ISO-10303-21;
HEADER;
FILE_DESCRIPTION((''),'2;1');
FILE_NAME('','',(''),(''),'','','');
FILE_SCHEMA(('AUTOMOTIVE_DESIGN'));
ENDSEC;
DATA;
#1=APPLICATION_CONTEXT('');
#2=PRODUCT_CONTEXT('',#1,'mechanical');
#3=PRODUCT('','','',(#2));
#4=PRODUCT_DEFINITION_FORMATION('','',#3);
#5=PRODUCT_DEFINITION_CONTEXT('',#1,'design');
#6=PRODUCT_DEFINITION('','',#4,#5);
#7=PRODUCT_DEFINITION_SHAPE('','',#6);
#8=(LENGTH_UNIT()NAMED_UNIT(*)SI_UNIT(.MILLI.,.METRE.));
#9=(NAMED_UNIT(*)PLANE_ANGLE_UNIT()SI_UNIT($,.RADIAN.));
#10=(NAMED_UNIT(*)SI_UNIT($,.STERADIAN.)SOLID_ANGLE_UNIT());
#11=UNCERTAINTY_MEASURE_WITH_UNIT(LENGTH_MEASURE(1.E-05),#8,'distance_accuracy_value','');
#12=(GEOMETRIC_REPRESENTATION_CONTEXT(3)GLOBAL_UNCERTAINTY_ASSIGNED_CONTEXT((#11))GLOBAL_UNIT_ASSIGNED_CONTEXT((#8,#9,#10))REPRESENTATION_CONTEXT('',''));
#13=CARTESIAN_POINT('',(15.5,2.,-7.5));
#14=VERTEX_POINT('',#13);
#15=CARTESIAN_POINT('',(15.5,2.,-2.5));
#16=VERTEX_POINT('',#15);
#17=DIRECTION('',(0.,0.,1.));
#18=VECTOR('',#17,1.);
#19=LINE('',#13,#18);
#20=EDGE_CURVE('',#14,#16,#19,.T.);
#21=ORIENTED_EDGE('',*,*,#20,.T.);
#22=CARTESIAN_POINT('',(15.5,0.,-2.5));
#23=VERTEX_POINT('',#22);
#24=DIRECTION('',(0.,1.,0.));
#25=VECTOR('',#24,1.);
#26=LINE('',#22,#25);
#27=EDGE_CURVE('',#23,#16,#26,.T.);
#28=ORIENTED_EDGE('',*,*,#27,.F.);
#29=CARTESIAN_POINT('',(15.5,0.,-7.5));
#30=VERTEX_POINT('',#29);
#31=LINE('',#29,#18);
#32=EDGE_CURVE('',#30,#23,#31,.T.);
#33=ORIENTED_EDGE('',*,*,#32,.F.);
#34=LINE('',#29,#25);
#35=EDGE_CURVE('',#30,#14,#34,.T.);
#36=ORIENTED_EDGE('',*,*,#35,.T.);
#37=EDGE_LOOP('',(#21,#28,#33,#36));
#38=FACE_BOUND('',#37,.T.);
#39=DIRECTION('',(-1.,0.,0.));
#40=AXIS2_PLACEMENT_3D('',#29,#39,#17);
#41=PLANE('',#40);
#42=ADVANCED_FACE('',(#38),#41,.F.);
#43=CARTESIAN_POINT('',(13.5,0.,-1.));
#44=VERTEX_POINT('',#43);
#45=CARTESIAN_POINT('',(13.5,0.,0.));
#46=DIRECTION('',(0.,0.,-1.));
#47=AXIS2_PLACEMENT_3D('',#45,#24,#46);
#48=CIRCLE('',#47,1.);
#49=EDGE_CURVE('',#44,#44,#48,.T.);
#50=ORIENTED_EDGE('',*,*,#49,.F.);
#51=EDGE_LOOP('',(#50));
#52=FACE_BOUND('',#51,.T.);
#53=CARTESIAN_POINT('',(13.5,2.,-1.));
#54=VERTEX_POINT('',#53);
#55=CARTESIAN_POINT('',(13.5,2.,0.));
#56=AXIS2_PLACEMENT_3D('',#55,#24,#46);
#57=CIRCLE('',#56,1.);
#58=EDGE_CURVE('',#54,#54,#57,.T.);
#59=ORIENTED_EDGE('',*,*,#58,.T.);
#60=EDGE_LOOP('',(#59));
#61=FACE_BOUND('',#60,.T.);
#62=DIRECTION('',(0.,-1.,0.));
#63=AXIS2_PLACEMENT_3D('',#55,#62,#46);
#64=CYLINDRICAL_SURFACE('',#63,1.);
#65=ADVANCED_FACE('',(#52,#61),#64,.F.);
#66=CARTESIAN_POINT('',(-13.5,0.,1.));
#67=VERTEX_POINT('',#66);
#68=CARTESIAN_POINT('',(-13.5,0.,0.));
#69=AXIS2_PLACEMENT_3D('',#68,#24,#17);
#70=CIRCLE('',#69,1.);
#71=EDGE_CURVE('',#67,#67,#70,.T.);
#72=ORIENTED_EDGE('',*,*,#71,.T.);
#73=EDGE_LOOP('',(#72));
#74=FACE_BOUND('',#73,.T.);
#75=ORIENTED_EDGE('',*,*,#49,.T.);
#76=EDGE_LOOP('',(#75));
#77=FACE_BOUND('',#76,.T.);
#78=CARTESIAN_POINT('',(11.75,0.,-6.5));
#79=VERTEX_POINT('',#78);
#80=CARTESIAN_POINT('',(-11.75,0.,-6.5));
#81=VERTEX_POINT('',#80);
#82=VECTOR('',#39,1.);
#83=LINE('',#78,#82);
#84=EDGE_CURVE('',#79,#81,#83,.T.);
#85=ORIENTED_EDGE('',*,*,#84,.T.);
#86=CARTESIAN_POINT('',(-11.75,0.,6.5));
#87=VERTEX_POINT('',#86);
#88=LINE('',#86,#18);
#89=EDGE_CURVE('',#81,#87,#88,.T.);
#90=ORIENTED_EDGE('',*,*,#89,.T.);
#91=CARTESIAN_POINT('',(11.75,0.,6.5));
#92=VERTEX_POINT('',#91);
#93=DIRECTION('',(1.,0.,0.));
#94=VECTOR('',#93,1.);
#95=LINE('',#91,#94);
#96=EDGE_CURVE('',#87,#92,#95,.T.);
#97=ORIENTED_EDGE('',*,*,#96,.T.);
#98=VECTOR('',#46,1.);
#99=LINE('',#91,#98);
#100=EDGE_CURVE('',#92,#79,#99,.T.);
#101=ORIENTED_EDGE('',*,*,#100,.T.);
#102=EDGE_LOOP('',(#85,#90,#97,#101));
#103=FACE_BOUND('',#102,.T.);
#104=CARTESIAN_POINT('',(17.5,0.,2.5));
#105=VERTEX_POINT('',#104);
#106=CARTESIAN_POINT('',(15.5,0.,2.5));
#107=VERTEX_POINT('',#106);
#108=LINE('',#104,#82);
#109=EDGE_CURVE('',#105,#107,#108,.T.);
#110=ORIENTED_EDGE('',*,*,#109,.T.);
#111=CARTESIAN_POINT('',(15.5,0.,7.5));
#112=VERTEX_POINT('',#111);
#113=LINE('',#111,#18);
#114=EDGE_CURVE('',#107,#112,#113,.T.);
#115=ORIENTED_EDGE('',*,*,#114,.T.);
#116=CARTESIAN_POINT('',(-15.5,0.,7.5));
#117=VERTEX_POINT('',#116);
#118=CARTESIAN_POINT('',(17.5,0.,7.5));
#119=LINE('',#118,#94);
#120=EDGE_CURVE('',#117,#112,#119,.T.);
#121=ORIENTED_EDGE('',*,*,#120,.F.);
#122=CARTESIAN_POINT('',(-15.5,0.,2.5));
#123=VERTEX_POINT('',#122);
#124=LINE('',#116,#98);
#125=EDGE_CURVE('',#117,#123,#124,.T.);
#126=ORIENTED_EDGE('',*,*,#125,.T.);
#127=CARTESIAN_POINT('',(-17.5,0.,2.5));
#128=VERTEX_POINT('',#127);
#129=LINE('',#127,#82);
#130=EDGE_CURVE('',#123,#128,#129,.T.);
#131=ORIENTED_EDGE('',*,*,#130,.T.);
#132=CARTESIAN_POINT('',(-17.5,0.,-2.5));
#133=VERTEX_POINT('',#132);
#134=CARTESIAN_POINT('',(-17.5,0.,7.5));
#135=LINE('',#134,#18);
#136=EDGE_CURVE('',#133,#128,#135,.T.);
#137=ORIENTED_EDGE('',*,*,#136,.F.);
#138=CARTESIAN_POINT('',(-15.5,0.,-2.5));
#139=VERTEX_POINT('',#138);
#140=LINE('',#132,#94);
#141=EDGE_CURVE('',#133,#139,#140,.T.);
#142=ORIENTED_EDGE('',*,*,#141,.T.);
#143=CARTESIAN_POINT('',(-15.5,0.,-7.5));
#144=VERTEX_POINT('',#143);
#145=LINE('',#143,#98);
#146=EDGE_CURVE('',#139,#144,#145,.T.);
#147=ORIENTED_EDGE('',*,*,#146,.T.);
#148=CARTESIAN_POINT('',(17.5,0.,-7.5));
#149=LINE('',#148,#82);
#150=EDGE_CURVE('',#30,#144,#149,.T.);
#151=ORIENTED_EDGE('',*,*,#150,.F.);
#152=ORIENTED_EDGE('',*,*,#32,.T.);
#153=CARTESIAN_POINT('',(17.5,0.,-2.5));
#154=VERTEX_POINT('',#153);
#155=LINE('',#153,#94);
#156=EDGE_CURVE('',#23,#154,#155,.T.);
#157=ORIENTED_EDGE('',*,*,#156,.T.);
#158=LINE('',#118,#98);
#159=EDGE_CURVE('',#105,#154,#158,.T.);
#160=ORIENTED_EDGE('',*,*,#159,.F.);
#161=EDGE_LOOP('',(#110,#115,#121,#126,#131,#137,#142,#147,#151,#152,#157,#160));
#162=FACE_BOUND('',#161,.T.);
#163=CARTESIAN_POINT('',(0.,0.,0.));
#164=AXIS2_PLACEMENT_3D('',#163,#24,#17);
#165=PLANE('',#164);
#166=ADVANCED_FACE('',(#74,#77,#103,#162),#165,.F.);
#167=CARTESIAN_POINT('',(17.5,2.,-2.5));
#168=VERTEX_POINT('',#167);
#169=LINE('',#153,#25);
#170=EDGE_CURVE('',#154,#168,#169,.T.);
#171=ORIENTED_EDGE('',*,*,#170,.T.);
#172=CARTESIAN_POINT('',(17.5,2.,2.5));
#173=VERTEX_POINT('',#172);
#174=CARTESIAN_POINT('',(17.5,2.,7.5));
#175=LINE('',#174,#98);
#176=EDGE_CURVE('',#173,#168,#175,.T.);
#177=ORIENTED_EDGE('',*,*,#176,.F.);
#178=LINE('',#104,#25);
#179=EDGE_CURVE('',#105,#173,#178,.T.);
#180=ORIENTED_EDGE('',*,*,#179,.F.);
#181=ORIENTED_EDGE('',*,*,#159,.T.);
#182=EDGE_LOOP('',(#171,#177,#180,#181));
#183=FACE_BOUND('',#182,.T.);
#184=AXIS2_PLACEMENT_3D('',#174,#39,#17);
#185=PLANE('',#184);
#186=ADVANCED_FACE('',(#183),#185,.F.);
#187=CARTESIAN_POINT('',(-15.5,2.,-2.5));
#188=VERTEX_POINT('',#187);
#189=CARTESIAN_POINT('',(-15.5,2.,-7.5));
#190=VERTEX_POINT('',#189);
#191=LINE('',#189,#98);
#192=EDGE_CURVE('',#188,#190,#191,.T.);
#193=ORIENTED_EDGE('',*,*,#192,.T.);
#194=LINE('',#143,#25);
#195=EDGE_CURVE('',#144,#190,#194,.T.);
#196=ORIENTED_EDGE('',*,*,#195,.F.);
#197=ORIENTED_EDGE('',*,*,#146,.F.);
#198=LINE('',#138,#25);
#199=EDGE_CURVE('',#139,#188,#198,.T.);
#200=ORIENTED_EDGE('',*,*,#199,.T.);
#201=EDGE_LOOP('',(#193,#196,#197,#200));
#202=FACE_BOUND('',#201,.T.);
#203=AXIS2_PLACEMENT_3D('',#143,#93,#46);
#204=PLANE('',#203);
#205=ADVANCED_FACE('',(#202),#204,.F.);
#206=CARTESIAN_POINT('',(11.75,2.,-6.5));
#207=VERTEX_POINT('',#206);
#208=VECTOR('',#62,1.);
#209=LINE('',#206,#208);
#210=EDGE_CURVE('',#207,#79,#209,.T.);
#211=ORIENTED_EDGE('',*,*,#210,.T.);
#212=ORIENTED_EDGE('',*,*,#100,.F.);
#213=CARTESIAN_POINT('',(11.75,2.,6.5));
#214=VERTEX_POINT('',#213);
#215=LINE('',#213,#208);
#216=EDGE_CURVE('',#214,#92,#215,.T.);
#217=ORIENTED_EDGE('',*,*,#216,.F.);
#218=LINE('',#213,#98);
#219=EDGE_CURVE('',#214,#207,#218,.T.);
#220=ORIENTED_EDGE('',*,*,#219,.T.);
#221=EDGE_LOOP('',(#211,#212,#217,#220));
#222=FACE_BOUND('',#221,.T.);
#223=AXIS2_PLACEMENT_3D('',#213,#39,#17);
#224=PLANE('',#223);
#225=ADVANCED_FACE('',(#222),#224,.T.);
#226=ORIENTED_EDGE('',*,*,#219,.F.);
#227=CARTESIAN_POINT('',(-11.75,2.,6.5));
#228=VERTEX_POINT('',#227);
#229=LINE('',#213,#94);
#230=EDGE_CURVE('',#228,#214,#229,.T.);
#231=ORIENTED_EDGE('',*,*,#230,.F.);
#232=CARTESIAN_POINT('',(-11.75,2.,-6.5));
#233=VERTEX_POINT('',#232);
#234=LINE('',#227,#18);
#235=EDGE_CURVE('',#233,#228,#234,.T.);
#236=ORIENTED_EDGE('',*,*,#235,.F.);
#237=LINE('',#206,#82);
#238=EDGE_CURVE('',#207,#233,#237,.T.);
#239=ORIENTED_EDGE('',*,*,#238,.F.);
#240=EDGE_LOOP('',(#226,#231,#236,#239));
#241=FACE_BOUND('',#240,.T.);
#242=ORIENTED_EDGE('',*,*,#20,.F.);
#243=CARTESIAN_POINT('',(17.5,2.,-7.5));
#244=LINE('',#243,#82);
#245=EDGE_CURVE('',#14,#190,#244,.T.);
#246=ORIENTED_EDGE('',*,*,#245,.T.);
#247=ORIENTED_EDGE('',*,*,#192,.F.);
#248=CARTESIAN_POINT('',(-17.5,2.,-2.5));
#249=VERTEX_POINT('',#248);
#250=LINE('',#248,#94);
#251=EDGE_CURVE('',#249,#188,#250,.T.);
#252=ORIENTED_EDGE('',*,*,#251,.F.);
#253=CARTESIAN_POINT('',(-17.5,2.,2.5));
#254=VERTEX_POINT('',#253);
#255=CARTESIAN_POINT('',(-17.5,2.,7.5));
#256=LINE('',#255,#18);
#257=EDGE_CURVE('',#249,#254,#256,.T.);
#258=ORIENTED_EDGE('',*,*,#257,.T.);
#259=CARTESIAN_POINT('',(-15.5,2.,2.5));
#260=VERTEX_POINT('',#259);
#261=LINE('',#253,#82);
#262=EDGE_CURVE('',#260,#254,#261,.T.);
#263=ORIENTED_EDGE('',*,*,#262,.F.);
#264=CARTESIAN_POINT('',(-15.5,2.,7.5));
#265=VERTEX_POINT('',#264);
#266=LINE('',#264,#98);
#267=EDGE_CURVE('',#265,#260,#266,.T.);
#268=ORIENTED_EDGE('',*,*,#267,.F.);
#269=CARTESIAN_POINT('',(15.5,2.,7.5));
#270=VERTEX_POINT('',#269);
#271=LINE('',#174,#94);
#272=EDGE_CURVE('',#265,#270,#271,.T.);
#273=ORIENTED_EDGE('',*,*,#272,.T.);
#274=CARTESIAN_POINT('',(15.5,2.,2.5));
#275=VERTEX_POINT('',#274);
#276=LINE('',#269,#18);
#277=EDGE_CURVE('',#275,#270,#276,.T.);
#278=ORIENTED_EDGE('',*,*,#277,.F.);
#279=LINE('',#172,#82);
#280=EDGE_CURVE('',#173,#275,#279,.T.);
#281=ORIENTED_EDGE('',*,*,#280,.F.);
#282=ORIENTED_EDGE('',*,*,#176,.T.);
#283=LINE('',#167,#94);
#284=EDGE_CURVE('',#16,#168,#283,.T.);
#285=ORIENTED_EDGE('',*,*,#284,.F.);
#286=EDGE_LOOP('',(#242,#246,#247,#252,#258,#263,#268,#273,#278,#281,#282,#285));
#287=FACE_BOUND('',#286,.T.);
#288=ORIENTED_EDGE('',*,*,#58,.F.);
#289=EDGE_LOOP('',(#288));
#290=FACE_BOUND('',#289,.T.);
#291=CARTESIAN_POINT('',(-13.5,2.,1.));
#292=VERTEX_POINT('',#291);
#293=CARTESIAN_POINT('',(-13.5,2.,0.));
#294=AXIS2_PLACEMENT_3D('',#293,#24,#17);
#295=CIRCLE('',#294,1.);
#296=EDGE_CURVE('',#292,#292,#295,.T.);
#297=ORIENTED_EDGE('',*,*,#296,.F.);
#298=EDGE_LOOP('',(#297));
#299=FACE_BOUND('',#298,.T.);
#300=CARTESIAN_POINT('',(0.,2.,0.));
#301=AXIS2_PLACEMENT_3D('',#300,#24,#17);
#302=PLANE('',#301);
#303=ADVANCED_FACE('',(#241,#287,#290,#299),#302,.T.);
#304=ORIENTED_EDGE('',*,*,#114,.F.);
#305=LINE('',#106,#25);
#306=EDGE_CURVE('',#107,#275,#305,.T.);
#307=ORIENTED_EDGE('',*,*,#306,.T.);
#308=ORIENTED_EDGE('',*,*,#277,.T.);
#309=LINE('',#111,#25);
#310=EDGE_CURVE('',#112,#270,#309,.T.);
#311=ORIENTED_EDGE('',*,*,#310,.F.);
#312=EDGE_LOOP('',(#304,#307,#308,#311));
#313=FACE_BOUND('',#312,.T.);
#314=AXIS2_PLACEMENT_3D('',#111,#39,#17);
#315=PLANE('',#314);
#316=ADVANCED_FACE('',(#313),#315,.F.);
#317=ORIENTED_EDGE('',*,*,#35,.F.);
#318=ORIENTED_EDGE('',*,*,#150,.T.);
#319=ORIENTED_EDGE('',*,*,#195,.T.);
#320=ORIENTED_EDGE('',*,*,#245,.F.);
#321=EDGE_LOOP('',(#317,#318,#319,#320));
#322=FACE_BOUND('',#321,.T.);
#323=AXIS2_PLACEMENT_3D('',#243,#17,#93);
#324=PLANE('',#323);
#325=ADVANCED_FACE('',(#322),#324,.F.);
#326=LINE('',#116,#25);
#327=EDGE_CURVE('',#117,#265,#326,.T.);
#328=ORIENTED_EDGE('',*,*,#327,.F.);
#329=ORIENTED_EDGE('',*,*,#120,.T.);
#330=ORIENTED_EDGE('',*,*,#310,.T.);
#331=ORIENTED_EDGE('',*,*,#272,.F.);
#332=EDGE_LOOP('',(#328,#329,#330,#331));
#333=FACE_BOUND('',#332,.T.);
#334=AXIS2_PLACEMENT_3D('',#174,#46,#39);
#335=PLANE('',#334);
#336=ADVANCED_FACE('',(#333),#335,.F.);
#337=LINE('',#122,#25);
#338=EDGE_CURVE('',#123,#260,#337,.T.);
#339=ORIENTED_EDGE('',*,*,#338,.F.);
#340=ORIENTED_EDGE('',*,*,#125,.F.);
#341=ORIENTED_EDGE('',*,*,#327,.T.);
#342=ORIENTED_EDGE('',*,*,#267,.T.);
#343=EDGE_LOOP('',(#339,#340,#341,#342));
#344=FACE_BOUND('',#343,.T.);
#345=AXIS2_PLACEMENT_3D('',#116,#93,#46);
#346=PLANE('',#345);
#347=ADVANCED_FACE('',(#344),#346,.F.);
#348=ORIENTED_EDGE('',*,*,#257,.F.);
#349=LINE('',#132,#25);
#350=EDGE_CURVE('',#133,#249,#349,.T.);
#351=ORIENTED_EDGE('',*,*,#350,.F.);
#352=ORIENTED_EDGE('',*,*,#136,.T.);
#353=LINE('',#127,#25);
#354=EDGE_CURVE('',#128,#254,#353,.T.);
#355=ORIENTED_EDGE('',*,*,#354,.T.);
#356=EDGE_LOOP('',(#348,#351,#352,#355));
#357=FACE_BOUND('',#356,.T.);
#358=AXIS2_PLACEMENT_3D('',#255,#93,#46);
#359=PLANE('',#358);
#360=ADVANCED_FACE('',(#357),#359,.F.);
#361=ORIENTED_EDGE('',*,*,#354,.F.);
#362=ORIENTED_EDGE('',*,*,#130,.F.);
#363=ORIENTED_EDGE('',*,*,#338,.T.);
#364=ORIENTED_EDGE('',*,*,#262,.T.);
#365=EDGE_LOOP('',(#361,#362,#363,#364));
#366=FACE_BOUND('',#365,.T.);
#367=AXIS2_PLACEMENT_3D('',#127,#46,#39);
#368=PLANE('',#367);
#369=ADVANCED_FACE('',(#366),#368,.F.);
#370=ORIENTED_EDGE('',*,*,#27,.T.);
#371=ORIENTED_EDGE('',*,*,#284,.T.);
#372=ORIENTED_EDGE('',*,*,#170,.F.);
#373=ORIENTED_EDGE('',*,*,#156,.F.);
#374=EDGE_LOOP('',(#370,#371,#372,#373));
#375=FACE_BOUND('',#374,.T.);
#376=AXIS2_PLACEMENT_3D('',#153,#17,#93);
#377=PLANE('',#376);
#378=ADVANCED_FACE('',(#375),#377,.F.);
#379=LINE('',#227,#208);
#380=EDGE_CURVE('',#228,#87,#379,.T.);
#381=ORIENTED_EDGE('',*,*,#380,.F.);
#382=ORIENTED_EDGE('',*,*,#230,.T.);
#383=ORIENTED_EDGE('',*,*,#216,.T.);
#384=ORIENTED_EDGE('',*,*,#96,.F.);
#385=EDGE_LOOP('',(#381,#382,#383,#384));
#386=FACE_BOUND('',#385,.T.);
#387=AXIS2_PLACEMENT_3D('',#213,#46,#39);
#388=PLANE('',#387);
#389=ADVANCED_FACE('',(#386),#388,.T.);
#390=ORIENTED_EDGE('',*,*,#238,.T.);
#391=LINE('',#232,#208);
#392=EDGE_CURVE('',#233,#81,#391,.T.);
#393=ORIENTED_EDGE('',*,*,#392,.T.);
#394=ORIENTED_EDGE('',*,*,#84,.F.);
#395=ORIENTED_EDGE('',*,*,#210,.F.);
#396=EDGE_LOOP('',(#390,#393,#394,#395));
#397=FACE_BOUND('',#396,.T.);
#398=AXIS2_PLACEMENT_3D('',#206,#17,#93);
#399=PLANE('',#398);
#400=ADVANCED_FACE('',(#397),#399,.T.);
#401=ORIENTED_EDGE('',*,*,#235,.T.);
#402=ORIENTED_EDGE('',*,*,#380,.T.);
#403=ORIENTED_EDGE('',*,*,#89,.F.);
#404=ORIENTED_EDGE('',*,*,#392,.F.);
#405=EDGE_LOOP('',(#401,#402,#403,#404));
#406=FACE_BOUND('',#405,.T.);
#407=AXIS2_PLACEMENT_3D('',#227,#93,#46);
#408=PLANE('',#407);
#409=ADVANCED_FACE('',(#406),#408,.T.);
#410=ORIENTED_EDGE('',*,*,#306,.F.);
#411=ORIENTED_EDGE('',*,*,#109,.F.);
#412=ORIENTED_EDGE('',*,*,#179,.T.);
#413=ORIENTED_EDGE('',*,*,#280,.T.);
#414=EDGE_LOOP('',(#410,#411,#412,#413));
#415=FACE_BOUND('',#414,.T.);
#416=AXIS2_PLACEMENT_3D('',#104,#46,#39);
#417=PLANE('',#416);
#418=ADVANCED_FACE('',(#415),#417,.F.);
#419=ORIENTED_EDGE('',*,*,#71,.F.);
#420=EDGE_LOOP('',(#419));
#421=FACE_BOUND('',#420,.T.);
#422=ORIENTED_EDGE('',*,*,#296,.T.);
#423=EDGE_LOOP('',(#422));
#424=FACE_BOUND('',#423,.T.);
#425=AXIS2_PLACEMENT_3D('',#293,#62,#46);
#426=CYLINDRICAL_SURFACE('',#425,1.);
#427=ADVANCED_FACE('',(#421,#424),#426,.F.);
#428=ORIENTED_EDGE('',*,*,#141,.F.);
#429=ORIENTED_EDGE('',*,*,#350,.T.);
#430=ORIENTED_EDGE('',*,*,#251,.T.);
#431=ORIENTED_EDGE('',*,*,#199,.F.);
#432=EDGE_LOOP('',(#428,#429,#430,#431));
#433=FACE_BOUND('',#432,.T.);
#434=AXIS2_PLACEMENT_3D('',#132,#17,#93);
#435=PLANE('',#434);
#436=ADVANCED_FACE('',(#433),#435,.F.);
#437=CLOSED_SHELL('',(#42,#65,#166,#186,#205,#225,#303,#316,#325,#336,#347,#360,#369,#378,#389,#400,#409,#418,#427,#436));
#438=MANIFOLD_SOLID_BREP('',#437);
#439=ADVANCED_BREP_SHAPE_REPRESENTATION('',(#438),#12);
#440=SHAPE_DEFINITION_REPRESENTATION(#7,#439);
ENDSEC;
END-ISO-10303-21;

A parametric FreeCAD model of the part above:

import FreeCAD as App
import Part
import Sketcher
from FreeCAD import Vector
Q = App.Units.Quantity


def add_polygon(sketch, points):
    """Adds a closed chain of lines whose ends are joined by coincident constraints."""
    first, n = sketch.GeometryCount, len(points)
    for a, b in zip(points, points[1:] + points[:1]):
        sketch.addGeometry(Part.LineSegment(App.Vector(*a, 0), App.Vector(*b, 0)), False)
    for i in range(n):
        sketch.addConstraint(Sketcher.Constraint("Coincident", first + i, 2, first + (i + 1) % n, 1))

doc = App.newDocument("Part")
body = doc.addObject("PartDesign::Body", "Body")

# Sketch on XZ plane
sketch1 = doc.addObject("Sketcher::SketchObject", "Sketch")
body.addObject(sketch1)
sketch1.AttachmentSupport = (doc.XZ_Plane, [""])
sketch1.MapMode = "FlatFace"
add_polygon(sketch1, [(-17.5, -7.5), (-17.5, 7.5), (17.5, 7.5), (17.5, -7.5)])  # lines 0-3
sketch1.addGeometry(Part.Circle(Vector(-13.5, 0, 0), Vector(0, 0, 1), 1), False)  # 4
add_polygon(sketch1, [(11.75, 6.5), (-11.75, 6.5), (-11.75, -6.5), (11.75, -6.5)])  # lines 5-8
sketch1.addGeometry(Part.Circle(Vector(13.5, 0, 0), Vector(0, 0, 1), 1), False)  # 9
sketch1.addConstraint([
    Sketcher.Constraint("Vertical", 0),
    Sketcher.Constraint("Horizontal", 1),
    Sketcher.Constraint("Vertical", 2),
    Sketcher.Constraint("Horizontal", 3),
    Sketcher.Constraint("Horizontal", 5),
    Sketcher.Constraint("Vertical", 6),
    Sketcher.Constraint("Horizontal", 7),
    Sketcher.Constraint("Vertical", 8),
    Sketcher.Constraint("Equal", 4, 9),
    Sketcher.Constraint("Symmetric", 4, 3, 9, 3, -1, 1),
    Sketcher.Constraint("Symmetric", 0, 2, 2, 2, -1, 1),
    Sketcher.Constraint("Symmetric", 5, 2, 7, 2, -1, 1),
    Sketcher.Constraint("PointOnObject", 4, 3, -1),
    Sketcher.Constraint("Diameter", 4, Q("2 mm")),
    Sketcher.Constraint("DistanceX", 1, 1, 1, 2, Q("35 mm")),
    Sketcher.Constraint("DistanceY", 0, 1, 0, 2, Q("15 mm")),
    Sketcher.Constraint("DistanceY", 6, 2, 6, 1, Q("13 mm")),
    Sketcher.Constraint("DistanceX", 5, 2, 5, 1, Q("23.5 mm")),
    Sketcher.Constraint("DistanceX", 4, 3, 9, 3, Q("27 mm")),
])
pad1 = doc.addObject("PartDesign::Pad", "Pad")
body.addObject(pad1)
pad1.Profile = sketch1
pad1.Length = 2
pad1.Reversed = True

# Sketch on XZ plane
sketch2 = doc.addObject("Sketcher::SketchObject", "Sketch001")
body.addObject(sketch2)
sketch2.AttachmentSupport = (doc.XZ_Plane, [""])
sketch2.MapMode = "FlatFace"
sketch2.AttachmentOffset = App.Placement(Vector(0, 0, -2), App.Rotation())
add_polygon(sketch2, [(15.5, -7.5), (15.5, -2.5), (17.5, -2.5), (17.5, -7.5)])  # lines 0-3
add_polygon(sketch2, [(15.5, 2.5), (15.5, 7.5), (17.5, 7.5), (17.5, 2.5)])  # lines 4-7
add_polygon(sketch2, [(-17.5, 2.5), (-17.5, 7.5), (-15.5, 7.5), (-15.5, 2.5)])  # lines 8-11
add_polygon(sketch2, [(-17.5, -7.5), (-17.5, -2.5), (-15.5, -2.5), (-15.5, -7.5)])  # lines 12-15
sketch2.addConstraint([
    Sketcher.Constraint("Vertical", 0),
    Sketcher.Constraint("Horizontal", 1),
    Sketcher.Constraint("Vertical", 2),
    Sketcher.Constraint("Horizontal", 3),
    Sketcher.Constraint("Vertical", 4),
    Sketcher.Constraint("Horizontal", 5),
    Sketcher.Constraint("Vertical", 6),
    Sketcher.Constraint("Horizontal", 7),
    Sketcher.Constraint("Vertical", 8),
    Sketcher.Constraint("Horizontal", 9),
    Sketcher.Constraint("Vertical", 10),
    Sketcher.Constraint("Horizontal", 11),
    Sketcher.Constraint("Vertical", 12),
    Sketcher.Constraint("Horizontal", 13),
    Sketcher.Constraint("Vertical", 14),
    Sketcher.Constraint("Horizontal", 15),
    Sketcher.Constraint("Symmetric", 2, 2, 8, 2, -1, 1),
    Sketcher.Constraint("Symmetric", 0, 2, 10, 2, -1, 1),
    Sketcher.Constraint("Symmetric", 6, 2, 12, 2, -1, 1),
    Sketcher.Constraint("Symmetric", 4, 2, 14, 2, -1, 1),
    Sketcher.Constraint("Symmetric", 5, 2, 8, 2, -2),
    Sketcher.Constraint("Symmetric", 7, 2, 10, 2, -2),
    Sketcher.Constraint("DistanceX", 1, 1, 1, 2, Q("2 mm")),
    Sketcher.Constraint("DistanceY", 0, 1, 0, 2, Q("5 mm")),
    Sketcher.Constraint("DistanceY", 0, 2, 4, 2, Q("10 mm")),
    Sketcher.Constraint("DistanceX", 8, 2, 4, 2, Q("33 mm")),
])
pocket1 = doc.addObject("PartDesign::Pocket", "Pocket")
body.addObject(pocket1)
pocket1.Profile = sketch2
pocket1.Length = 2
pocket1.Reversed = True

doc.recompute()
